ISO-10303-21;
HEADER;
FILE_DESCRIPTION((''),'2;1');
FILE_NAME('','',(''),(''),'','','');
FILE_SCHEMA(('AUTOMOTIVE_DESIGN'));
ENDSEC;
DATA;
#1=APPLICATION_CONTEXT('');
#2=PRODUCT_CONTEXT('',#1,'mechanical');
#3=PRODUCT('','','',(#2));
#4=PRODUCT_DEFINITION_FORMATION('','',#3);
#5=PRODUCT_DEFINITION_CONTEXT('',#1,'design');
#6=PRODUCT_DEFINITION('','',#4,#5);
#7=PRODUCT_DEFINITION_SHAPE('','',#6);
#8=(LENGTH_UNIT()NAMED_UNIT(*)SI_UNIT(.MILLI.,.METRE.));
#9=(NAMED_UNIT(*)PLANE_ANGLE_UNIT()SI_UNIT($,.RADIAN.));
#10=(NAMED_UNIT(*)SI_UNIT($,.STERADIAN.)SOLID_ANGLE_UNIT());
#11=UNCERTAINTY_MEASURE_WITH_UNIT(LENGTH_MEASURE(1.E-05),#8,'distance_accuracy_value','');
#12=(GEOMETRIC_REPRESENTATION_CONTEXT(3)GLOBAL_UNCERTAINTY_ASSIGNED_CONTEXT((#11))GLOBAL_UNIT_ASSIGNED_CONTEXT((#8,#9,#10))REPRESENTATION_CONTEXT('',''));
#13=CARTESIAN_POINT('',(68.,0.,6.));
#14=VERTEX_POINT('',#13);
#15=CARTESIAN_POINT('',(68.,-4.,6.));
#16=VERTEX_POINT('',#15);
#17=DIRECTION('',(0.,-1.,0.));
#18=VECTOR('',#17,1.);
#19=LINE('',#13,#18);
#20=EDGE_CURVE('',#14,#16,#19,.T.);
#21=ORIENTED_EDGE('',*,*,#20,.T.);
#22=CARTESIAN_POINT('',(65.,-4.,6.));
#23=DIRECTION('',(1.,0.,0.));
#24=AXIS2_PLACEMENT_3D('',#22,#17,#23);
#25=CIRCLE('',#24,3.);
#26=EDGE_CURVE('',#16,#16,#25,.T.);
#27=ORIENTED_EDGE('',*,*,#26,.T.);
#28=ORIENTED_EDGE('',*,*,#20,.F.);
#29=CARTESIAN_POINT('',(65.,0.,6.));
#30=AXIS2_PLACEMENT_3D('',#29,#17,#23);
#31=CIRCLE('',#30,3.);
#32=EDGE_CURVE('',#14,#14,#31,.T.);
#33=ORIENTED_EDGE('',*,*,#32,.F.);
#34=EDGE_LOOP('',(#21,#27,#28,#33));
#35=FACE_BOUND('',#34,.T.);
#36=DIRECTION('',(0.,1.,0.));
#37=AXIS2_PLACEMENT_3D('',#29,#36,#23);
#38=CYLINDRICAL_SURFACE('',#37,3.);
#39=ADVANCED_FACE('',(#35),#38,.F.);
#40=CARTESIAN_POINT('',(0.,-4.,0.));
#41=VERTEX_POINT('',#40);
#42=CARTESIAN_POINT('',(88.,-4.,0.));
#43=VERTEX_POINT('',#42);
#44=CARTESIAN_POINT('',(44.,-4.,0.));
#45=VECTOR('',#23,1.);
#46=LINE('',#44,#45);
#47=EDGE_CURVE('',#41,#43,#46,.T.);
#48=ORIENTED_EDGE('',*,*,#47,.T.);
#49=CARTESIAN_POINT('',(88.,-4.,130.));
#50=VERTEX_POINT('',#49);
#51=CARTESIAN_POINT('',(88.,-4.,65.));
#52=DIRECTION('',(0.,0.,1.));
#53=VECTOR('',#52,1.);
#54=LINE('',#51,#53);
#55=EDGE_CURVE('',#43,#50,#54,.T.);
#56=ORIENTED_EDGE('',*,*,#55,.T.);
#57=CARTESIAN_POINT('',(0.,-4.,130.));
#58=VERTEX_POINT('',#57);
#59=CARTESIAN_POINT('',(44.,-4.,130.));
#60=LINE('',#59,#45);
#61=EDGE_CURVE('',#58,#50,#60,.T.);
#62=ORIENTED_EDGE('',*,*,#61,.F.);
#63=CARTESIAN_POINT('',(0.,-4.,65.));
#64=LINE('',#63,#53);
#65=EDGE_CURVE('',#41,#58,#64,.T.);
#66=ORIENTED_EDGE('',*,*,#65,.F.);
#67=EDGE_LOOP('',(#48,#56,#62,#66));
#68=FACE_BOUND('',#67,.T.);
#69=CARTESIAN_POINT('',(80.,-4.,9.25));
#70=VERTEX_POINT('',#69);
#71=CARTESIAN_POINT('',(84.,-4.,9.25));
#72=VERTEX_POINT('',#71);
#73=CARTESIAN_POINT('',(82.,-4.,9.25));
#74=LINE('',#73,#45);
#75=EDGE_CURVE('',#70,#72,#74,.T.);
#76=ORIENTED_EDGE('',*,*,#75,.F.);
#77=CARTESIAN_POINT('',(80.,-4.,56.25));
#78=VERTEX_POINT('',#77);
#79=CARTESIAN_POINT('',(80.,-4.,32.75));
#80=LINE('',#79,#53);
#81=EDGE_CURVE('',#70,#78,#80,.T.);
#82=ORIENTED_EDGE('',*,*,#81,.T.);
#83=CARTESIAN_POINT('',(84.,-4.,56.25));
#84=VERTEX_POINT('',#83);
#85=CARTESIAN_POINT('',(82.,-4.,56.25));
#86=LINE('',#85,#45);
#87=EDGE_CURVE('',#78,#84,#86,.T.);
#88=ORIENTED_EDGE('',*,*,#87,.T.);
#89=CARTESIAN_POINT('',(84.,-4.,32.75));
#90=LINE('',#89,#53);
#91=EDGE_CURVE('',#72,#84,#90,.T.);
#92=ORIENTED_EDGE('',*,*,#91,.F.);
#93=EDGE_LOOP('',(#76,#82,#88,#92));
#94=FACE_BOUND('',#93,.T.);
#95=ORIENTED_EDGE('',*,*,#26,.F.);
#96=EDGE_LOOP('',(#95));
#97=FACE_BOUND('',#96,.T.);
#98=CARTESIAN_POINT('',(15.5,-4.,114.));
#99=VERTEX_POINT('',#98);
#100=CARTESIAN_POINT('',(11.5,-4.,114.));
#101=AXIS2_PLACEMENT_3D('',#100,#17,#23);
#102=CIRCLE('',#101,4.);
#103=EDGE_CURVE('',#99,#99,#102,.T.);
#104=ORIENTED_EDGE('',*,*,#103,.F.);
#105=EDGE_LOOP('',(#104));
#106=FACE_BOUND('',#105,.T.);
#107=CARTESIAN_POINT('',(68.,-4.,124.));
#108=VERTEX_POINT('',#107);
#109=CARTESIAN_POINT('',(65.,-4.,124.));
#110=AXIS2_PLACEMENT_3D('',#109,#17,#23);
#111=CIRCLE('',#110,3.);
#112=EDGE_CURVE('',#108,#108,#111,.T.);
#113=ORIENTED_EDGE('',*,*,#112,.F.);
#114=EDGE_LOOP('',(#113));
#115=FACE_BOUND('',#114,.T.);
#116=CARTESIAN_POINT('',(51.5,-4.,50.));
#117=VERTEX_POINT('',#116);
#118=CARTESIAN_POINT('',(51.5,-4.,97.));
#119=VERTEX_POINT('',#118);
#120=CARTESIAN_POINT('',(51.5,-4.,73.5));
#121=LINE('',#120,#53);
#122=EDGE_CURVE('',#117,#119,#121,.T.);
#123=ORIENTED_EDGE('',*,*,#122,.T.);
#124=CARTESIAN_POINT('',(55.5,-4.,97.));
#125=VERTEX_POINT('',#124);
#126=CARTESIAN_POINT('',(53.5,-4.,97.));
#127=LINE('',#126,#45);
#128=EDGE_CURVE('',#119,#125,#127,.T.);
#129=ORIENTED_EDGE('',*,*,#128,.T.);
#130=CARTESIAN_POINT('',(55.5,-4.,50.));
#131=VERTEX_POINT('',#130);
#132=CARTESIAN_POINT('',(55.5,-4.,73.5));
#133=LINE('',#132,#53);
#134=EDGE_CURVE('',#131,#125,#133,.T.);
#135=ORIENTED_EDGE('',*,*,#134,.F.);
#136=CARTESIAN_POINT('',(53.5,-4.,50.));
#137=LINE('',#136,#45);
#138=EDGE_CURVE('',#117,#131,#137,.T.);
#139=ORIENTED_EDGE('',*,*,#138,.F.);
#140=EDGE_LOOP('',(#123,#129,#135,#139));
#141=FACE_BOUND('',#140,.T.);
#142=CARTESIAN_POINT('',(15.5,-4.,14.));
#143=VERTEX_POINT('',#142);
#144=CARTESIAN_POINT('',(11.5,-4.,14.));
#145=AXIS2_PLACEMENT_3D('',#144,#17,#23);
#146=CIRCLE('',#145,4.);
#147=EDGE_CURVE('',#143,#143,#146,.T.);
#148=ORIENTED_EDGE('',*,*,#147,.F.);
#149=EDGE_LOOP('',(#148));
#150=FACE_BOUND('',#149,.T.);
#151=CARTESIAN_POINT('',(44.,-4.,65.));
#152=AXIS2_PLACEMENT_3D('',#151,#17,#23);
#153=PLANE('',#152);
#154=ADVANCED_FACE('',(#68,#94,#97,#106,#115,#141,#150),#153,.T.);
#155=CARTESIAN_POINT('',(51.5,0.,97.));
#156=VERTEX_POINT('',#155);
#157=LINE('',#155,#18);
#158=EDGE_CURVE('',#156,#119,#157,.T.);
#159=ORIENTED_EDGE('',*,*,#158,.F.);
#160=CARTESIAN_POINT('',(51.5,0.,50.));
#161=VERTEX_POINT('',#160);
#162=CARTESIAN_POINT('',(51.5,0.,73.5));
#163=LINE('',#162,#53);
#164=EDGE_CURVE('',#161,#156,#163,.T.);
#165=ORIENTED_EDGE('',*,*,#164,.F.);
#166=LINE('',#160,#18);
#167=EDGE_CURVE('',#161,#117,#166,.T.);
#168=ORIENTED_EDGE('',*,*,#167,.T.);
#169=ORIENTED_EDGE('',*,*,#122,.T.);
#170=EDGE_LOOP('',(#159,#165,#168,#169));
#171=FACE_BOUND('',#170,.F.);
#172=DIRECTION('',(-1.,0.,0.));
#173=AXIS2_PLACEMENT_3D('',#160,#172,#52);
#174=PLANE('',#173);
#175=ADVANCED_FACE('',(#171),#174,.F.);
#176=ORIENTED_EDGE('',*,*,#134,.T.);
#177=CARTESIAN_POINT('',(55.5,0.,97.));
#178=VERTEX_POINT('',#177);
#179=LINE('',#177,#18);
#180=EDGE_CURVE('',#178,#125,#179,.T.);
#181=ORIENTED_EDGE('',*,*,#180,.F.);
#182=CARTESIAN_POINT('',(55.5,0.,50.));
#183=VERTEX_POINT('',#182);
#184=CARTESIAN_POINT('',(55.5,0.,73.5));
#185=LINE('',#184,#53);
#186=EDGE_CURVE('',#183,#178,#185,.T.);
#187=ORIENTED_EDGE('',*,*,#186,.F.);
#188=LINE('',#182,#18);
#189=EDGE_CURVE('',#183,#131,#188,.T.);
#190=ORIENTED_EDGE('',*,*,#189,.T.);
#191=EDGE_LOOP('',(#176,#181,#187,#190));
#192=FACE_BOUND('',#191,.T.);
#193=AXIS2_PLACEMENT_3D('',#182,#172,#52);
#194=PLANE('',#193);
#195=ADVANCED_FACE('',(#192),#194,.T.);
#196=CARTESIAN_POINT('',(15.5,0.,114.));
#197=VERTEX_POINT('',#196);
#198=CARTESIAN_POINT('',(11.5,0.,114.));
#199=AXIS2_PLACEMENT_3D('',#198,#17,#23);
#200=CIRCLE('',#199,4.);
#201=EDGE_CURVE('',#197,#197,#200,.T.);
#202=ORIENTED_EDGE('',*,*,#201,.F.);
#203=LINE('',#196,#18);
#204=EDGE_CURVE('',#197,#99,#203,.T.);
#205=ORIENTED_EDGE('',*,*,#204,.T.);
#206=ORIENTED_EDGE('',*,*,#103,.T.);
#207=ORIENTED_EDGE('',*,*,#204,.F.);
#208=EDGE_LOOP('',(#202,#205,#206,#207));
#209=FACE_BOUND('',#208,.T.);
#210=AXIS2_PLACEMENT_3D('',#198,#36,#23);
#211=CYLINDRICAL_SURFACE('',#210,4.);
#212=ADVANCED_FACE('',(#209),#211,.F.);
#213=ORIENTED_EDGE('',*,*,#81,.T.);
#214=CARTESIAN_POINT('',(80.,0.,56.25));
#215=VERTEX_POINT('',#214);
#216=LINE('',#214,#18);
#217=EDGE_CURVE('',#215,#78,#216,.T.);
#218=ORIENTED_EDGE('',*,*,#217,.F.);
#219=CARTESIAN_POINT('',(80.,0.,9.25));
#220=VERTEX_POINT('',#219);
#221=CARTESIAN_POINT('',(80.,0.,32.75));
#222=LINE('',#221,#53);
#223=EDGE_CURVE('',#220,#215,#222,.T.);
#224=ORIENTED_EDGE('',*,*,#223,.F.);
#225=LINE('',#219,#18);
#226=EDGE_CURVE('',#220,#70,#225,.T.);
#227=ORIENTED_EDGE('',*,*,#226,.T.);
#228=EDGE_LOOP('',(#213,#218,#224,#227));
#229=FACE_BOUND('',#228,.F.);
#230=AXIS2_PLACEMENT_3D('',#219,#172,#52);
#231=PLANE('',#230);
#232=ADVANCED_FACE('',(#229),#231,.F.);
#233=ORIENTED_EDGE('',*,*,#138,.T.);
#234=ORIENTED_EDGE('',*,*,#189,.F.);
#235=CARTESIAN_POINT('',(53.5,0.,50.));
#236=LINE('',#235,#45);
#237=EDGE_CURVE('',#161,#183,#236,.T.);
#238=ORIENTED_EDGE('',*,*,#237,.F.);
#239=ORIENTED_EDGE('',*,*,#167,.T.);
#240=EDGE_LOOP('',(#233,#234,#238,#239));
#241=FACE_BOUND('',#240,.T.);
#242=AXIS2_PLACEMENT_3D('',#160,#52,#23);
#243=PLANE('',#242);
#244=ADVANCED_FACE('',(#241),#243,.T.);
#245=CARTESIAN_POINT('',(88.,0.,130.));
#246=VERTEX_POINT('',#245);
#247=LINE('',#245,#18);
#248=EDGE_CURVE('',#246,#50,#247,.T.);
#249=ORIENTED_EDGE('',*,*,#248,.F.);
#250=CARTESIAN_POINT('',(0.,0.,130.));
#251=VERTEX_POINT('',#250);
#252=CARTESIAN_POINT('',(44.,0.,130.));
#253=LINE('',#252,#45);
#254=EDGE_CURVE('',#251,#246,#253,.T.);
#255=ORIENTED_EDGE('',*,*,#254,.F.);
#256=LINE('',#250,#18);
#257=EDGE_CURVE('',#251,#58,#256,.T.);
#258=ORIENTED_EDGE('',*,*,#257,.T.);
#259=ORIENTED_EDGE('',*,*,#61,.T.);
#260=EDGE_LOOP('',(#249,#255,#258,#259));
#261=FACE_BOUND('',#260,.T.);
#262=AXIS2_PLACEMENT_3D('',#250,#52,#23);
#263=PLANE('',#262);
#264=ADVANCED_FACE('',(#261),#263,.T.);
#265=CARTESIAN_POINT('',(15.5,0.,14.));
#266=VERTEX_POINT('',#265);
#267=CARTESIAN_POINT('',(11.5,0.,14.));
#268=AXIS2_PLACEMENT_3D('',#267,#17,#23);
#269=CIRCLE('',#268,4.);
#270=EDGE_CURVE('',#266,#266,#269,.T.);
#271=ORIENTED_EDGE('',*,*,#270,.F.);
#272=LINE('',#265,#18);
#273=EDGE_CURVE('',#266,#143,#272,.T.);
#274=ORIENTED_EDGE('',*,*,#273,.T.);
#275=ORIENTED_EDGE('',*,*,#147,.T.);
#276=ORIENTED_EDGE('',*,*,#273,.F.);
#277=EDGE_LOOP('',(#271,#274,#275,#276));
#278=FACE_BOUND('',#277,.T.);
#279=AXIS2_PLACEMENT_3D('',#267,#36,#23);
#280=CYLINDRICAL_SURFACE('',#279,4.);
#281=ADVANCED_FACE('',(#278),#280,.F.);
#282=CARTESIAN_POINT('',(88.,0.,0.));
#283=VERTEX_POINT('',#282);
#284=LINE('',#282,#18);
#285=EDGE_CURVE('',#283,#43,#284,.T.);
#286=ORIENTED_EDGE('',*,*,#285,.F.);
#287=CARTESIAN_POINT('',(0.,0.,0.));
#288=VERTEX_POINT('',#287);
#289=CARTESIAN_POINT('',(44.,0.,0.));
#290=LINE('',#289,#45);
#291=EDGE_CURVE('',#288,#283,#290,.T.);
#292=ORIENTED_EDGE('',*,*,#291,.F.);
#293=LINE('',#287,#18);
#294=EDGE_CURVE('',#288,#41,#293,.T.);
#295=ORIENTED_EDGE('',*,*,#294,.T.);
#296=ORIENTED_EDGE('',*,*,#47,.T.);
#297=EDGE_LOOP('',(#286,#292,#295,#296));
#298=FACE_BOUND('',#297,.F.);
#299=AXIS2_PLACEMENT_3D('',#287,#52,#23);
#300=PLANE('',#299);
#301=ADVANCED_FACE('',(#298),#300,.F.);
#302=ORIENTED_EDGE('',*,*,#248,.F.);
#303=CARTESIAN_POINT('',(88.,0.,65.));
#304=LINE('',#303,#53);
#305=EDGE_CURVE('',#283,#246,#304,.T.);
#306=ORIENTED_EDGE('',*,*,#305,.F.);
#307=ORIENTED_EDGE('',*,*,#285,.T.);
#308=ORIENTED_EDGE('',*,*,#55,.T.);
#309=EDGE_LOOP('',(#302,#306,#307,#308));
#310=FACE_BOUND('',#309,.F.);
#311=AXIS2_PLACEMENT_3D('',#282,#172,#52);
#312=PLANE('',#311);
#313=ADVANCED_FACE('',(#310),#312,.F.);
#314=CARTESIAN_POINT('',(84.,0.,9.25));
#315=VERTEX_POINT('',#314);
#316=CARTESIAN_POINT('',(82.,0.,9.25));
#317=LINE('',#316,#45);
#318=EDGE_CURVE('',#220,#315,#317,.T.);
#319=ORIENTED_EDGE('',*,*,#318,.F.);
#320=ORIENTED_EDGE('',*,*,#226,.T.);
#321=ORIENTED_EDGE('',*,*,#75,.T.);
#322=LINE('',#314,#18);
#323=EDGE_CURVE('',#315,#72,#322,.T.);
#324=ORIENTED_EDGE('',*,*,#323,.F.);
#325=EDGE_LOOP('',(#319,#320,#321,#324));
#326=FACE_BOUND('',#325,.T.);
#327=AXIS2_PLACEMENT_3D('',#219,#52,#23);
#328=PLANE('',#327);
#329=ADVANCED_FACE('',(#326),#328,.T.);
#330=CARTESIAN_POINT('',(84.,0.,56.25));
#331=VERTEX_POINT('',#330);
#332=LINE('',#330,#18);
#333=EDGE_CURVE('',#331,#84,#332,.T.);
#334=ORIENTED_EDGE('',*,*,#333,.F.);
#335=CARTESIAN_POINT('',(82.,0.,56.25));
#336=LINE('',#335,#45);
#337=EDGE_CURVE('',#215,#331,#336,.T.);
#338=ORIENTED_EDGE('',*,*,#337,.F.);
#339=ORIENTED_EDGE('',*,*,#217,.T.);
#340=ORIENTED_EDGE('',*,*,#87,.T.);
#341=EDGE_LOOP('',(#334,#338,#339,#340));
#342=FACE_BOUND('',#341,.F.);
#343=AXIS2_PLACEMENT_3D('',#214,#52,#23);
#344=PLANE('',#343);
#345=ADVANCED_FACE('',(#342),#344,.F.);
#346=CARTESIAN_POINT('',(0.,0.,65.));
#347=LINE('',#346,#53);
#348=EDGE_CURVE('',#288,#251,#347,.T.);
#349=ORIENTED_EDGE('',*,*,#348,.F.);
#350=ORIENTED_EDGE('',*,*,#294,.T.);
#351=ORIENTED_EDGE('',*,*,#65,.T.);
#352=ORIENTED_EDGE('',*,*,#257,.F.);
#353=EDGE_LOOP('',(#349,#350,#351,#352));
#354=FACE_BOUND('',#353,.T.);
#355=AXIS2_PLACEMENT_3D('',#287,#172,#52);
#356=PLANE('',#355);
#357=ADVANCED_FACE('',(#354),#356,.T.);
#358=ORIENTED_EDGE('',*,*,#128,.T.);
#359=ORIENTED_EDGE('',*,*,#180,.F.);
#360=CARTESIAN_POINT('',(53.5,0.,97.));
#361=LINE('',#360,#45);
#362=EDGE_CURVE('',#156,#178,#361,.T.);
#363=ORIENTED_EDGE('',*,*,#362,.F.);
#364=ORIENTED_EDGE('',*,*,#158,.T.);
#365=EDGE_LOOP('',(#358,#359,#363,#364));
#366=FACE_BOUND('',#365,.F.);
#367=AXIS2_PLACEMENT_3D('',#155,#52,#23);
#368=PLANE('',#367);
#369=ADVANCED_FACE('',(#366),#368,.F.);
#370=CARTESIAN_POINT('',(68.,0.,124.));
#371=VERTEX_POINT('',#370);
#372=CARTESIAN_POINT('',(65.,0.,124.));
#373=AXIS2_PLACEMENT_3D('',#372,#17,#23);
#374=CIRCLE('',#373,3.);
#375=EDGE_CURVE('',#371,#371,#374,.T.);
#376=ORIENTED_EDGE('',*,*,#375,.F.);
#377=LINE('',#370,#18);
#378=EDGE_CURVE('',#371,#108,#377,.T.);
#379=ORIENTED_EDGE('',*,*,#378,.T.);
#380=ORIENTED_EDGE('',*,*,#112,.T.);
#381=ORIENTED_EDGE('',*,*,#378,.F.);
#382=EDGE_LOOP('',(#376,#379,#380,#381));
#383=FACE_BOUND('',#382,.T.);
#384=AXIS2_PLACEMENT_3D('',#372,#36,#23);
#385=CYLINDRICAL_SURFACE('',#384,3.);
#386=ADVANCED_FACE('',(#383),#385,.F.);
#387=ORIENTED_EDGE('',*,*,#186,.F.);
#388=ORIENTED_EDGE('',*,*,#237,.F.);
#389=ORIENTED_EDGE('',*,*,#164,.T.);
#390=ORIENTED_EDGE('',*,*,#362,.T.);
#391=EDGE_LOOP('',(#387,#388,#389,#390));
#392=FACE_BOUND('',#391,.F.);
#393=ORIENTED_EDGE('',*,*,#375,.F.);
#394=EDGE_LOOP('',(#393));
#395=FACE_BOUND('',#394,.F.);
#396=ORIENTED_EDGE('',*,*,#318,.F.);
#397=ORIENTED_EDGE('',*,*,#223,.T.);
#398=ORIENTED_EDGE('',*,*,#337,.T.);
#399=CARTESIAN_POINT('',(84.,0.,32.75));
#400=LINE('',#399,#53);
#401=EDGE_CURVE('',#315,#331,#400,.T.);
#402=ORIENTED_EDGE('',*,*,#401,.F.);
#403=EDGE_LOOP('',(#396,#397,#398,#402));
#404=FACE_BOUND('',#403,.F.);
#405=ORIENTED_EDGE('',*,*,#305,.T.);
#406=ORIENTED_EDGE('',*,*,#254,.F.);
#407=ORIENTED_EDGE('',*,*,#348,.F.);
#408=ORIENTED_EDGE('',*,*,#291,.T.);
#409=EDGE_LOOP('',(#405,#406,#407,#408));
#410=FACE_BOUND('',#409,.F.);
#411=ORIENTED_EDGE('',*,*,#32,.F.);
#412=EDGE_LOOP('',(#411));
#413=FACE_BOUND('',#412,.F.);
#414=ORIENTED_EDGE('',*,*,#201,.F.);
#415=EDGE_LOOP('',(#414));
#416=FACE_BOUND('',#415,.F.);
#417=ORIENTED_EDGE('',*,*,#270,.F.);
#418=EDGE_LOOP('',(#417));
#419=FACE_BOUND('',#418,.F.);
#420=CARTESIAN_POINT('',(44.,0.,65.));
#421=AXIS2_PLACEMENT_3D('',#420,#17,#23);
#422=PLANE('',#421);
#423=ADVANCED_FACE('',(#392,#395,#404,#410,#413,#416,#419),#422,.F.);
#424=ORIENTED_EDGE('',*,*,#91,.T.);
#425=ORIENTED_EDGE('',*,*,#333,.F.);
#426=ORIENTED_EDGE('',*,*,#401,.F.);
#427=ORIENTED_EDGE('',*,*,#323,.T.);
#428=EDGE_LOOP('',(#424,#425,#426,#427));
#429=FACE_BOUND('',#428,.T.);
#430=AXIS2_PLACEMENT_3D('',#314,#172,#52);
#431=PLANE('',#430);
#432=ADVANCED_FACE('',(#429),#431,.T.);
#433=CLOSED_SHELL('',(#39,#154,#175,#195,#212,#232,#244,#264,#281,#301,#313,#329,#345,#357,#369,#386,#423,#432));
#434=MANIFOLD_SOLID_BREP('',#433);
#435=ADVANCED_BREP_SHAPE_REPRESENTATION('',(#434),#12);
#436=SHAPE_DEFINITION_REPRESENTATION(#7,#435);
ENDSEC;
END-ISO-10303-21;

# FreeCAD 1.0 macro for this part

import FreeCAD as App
import Part
import Sketcher

V = App.Vector
Q = App.Units.Quantity

doc = App.newDocument("Part")
body = doc.addObject("PartDesign::Body", "Body")

# Sketch on XZ plane
sketch1 = body.newObject("Sketcher::SketchObject", "Sketch")
sketch1.AttachmentSupport = (doc.getObject("XZ_Plane"), [""])
sketch1.MapMode = "FlatFace"
sketch1.addGeometry(Part.LineSegment(V(0, 130, 0), V(0, 0, 0)), False)
sketch1.addGeometry(Part.LineSegment(V(0, 0, 0), V(88, 0, 0)), False)
sketch1.addGeometry(Part.LineSegment(V(88, 0, 0), V(88, 130, 0)), False)
sketch1.addGeometry(Part.LineSegment(V(88, 130, 0), V(0, 130, 0)), False)
sketch1.addGeometry(Part.Circle(V(11.5, 14, 0), V(0, 0, 1), 4), False)
sketch1.addGeometry(Part.Circle(V(65, 6, 0), V(0, 0, 1), 3), False)
sketch1.addGeometry(Part.LineSegment(V(84, 9.2, 0), V(80, 9.2, 0)), False)
sketch1.addGeometry(Part.LineSegment(V(80, 9.2, 0), V(80, 56.2, 0)), False)
sketch1.addGeometry(Part.LineSegment(V(80, 56.2, 0), V(84, 56.2, 0)), False)
sketch1.addGeometry(Part.LineSegment(V(84, 56.2, 0), V(84, 9.2, 0)), False)
sketch1.addGeometry(Part.Circle(V(11.5, 114, 0), V(0, 0, 1), 4), False)
sketch1.addGeometry(Part.LineSegment(V(55.5, 50, 0), V(51.5, 50, 0)), False)
sketch1.addGeometry(Part.LineSegment(V(51.5, 50, 0), V(51.5, 97, 0)), False)
sketch1.addGeometry(Part.LineSegment(V(51.5, 97, 0), V(55.5, 97, 0)), False)
sketch1.addGeometry(Part.LineSegment(V(55.5, 97, 0), V(55.5, 50, 0)), False)
sketch1.addGeometry(Part.Circle(V(65, 124, 0), V(0, 0, 1), 3), False)
sketch1.addConstraint(Sketcher.Constraint("Coincident", 0, 2, 1, 1))
sketch1.addConstraint(Sketcher.Constraint("Coincident", 1, 2, 2, 1))
sketch1.addConstraint(Sketcher.Constraint("Coincident", 2, 2, 3, 1))
sketch1.addConstraint(Sketcher.Constraint("Coincident", 3, 2, 0, 1))
sketch1.addConstraint(Sketcher.Constraint("Coincident", 6, 2, 7, 1))
sketch1.addConstraint(Sketcher.Constraint("Coincident", 7, 2, 8, 1))
sketch1.addConstraint(Sketcher.Constraint("Coincident", 8, 2, 9, 1))
sketch1.addConstraint(Sketcher.Constraint("Coincident", 9, 2, 6, 1))
sketch1.addConstraint(Sketcher.Constraint("Coincident", 11, 2, 12, 1))
sketch1.addConstraint(Sketcher.Constraint("Coincident", 12, 2, 13, 1))
sketch1.addConstraint(Sketcher.Constraint("Coincident", 13, 2, 14, 1))
sketch1.addConstraint(Sketcher.Constraint("Coincident", 14, 2, 11, 1))
sketch1.addConstraint(Sketcher.Constraint("Vertical", 0))
sketch1.addConstraint(Sketcher.Constraint("Horizontal", 1))
sketch1.addConstraint(Sketcher.Constraint("Vertical", 2))
sketch1.addConstraint(Sketcher.Constraint("Horizontal", 3))
sketch1.addConstraint(Sketcher.Constraint("Horizontal", 6))
sketch1.addConstraint(Sketcher.Constraint("Vertical", 7))
sketch1.addConstraint(Sketcher.Constraint("Horizontal", 8))
sketch1.addConstraint(Sketcher.Constraint("Vertical", 9))
sketch1.addConstraint(Sketcher.Constraint("Horizontal", 11))
sketch1.addConstraint(Sketcher.Constraint("Vertical", 12))
sketch1.addConstraint(Sketcher.Constraint("Horizontal", 13))
sketch1.addConstraint(Sketcher.Constraint("Vertical", 14))
sketch1.addConstraint(Sketcher.Constraint("Coincident", 0, 2, -1, 1))
sketch1.addConstraint(Sketcher.Constraint("Equal", 4, 10))
sketch1.addConstraint(Sketcher.Constraint("Equal", 5, 15))
sketch1.addConstraint(Sketcher.Constraint("Vertical", 4, 3, 10, 3))
sketch1.addConstraint(Sketcher.Constraint("Vertical", 5, 3, 15, 3))
sketch1.addConstraint(Sketcher.Constraint("Equal", 8, 11))
sketch1.addConstraint(Sketcher.Constraint("Equal", 9, 12))
sketch1.addConstraint(Sketcher.Constraint("Diameter", 4, Q("8 mm")))
sketch1.addConstraint(Sketcher.Constraint("Diameter", 5, Q("6 mm")))
sketch1.addConstraint(Sketcher.Constraint("DistanceX", 1, 1, 1, 2, Q("88 mm")))
sketch1.addConstraint(Sketcher.Constraint("DistanceX", 6, 2, 6, 1, Q("4 mm")))
sketch1.addConstraint(Sketcher.Constraint("DistanceY", 0, 2, 0, 1, Q("130 mm")))
sketch1.addConstraint(Sketcher.Constraint("DistanceY", 7, 1, 7, 2, Q("47 mm")))
sketch1.addConstraint(Sketcher.Constraint("DistanceY", -1, 1, 4, 3, Q("14 mm")))
sketch1.addConstraint(Sketcher.Constraint("DistanceX", -1, 1, 5, 3, Q("65 mm")))
sketch1.addConstraint(Sketcher.Constraint("DistanceY", -1, 1, 5, 3, Q("6 mm")))
sketch1.addConstraint(Sketcher.Constraint("DistanceY", -1, 1, 10, 3, Q("114 mm")))
sketch1.addConstraint(Sketcher.Constraint("DistanceY", -1, 1, 15, 3, Q("124 mm")))
sketch1.addConstraint(Sketcher.Constraint("DistanceX", -1, 1, 6, 2, Q("80 mm")))
sketch1.addConstraint(Sketcher.Constraint("DistanceY", -1, 1, 11, 2, Q("50 mm")))
sketch1.addConstraint(Sketcher.Constraint("DistanceX", 10, 3, 12, 2, Q("40 mm")))
sketch1.addConstraint(Sketcher.Constraint("DistanceX", -1, 1, 4, 3, Q("11.5 mm")))
sketch1.addConstraint(Sketcher.Constraint("DistanceY", -1, 1, 6, 2, Q("9.25 mm")))
pad1 = body.newObject("PartDesign::Pad", "Pad")
pad1.Profile = sketch1
pad1.Length = 4

doc.recompute()
